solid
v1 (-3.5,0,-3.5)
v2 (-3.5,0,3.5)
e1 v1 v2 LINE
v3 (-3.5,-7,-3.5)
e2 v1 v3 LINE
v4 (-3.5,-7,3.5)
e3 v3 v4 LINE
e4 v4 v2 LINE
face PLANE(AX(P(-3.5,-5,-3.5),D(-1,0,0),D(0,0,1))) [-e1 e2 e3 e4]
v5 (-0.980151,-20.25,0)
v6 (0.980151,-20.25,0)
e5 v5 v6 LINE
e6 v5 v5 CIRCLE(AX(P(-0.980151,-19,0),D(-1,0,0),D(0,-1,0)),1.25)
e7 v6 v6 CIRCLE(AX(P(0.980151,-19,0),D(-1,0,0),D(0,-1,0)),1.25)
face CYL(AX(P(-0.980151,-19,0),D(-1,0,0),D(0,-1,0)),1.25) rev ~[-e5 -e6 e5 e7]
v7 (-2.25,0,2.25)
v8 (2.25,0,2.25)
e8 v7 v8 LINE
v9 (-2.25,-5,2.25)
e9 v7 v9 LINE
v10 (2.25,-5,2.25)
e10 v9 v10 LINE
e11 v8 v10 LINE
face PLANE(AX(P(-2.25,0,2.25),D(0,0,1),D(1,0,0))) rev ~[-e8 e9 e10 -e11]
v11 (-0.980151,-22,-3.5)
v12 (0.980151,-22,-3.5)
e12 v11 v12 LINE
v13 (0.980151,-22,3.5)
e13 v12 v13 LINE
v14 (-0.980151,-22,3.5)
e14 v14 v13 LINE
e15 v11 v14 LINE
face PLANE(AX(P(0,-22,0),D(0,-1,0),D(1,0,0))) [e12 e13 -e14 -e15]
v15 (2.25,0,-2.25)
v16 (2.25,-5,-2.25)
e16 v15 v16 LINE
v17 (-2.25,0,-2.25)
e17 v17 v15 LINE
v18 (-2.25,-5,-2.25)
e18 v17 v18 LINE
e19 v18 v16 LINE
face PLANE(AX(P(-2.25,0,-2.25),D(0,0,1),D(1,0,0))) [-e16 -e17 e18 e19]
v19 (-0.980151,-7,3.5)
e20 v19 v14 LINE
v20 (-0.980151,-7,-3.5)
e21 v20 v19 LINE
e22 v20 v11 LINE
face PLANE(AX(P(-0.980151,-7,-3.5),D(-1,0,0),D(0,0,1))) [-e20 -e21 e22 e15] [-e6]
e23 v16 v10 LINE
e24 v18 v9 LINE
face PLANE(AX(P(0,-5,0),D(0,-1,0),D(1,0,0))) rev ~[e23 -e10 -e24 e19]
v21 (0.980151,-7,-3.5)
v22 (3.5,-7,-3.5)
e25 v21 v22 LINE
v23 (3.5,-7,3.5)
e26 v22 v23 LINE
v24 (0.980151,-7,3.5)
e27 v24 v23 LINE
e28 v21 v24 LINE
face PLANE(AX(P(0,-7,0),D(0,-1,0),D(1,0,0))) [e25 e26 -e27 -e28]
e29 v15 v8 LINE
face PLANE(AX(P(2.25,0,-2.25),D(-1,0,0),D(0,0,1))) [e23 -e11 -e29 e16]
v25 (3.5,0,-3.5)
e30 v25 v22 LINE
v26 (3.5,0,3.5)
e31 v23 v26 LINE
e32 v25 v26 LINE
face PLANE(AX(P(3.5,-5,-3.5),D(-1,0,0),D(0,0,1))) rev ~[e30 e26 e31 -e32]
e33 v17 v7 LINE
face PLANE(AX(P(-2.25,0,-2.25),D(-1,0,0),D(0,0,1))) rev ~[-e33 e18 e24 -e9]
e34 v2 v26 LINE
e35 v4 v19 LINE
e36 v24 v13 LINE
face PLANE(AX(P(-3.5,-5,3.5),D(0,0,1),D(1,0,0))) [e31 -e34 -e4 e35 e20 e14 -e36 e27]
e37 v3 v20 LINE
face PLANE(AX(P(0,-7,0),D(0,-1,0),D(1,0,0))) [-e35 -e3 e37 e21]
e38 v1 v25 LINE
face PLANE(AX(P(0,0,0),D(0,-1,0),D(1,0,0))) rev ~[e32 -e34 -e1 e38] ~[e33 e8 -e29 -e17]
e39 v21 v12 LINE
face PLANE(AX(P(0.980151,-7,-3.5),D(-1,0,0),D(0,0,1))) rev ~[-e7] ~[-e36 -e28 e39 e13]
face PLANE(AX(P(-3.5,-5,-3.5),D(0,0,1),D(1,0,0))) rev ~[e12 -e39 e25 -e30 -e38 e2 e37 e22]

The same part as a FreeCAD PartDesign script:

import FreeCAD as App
import Part
import Sketcher
from FreeCAD import Vector
Q = App.Units.Quantity


def add_polygon(sketch, points):
    """Adds a closed chain of lines whose ends are joined by coincident constraints."""
    first, n = sketch.GeometryCount, len(points)
    for a, b in zip(points, points[1:] + points[:1]):
        sketch.addGeometry(Part.LineSegment(App.Vector(*a, 0), App.Vector(*b, 0)), False)
    for i in range(n):
        sketch.addConstraint(Sketcher.Constraint("Coincident", first + i, 2, first + (i + 1) % n, 1))

doc = App.newDocument("Part")
params = doc.addObject("Spreadsheet::Sheet", "Params")
for row, (alias, value) in enumerate([
    ("sketch1_width", "7 mm"),
    ("sketch1_width2", "4.5 mm"),
    ("pad1_length", "5 mm"),
    ("sketch2_width", "7 mm"),
    ("pad2_length", "2 mm"),
    ("sketch3_height", "7 mm"),
    ("pad3_length", "15 mm"),
    ("sketch4_diameter", "2.5 mm"),
    ("pocket1_length", "25 mm"),
], start=1):
    params.set(f"A{row}", alias)
    params.set(f"B{row}", "=" + value)
    params.setAlias(f"B{row}", alias)

body = doc.addObject("PartDesign::Body", "Body")

# Sketch on XZ plane
sketch1 = body.newObject("Sketcher::SketchObject", "Sketch")
sketch1.AttachmentSupport = (doc.getObject("XZ_Plane"), [""])
sketch1.MapMode = "FlatFace"
add_polygon(sketch1, [(-3.5, 3.5), (-3.5, -3.5), (3.5, -3.5), (3.5, 3.5)])  # lines 0-3
add_polygon(sketch1, [(2.2, -2.2), (-2.2, -2.2), (-2.2, 2.2), (2.2, 2.2)])  # lines 4-7
sketch1.addConstraint([
    Sketcher.Constraint("Vertical", 0),
    Sketcher.Constraint("Horizontal", 1),
    Sketcher.Constraint("Vertical", 2),
    Sketcher.Constraint("Horizontal", 3),
    Sketcher.Constraint("Horizontal", 4),
    Sketcher.Constraint("Vertical", 5),
    Sketcher.Constraint("Horizontal", 6),
    Sketcher.Constraint("Vertical", 7),
    Sketcher.Constraint("Symmetric", 0, 2, 2, 2, -1, 1),
    Sketcher.Constraint("Symmetric", 4, 2, 6, 2, -1, 1),
    Sketcher.Constraint("Equal", 3, 0),
    Sketcher.Constraint("Equal", 6, 5),
    Sketcher.Constraint("DistanceX", 1, 1, 1, 2, Q("7 mm")),
    Sketcher.Constraint("DistanceX", 4, 2, 4, 1, Q("4.5 mm")),
])
sketch1.setExpression("Constraints[20]", "Params.sketch1_width")
sketch1.setExpression("Constraints[21]", "Params.sketch1_width2")
pad1 = body.newObject("PartDesign::Pad", "Pad")
pad1.Profile = sketch1
pad1.setExpression("Length", "Params.pad1_length")

# Sketch on XZ plane
sketch2 = body.newObject("Sketcher::SketchObject", "Sketch001")
sketch2.AttachmentSupport = (doc.getObject("XZ_Plane"), [""])
sketch2.MapMode = "FlatFace"
sketch2.AttachmentOffset = App.Placement(Vector(0, 0, 5), App.Rotation())
add_polygon(sketch2, [(-4, 4), (-4, -4), (4, -4), (4, 4)])  # lines 0-3
sketch2.addConstraint([
    Sketcher.Constraint("Vertical", 0),
    Sketcher.Constraint("Horizontal", 1),
    Sketcher.Constraint("Vertical", 2),
    Sketcher.Constraint("Horizontal", 3),
    Sketcher.Constraint("Symmetric", 0, 2, 2, 2, -1, 1),
    Sketcher.Constraint("Equal", 3, 0),
    Sketcher.Constraint("DistanceX", 1, 1, 1, 2, Q("7 mm")),
])
sketch2.setExpression("Constraints[10]", "Params.sketch2_width")
pad2 = body.newObject("PartDesign::Pad", "Pad001")
pad2.Profile = sketch2
pad2.setExpression("Length", "Params.pad2_length")

# Sketch on XZ plane
sketch3 = body.newObject("Sketcher::SketchObject", "Sketch002")
sketch3.AttachmentSupport = (doc.getObject("XZ_Plane"), [""])
sketch3.MapMode = "FlatFace"
sketch3.AttachmentOffset = App.Placement(Vector(0, 0, 7), App.Rotation())
add_polygon(sketch3, [(-1, 3.5), (-1, -3.5), (1, -3.5), (1, 3.5)])  # lines 0-3
sketch3.addConstraint([
    Sketcher.Constraint("Vertical", 0),
    Sketcher.Constraint("Horizontal", 1),
    Sketcher.Constraint("Vertical", 2),
    Sketcher.Constraint("Horizontal", 3),
    Sketcher.Constraint("Symmetric", 0, 2, 2, 2, -1, 1),
    Sketcher.Constraint("DistanceY", 0, 2, 0, 1, Q("7 mm")),
    Sketcher.Constraint("DistanceX", 1, 1, 1, 2, Q("1.960302 mm")),
])
sketch3.setExpression("Constraints[9]", "Params.sketch3_height")
pad3 = body.newObject("PartDesign::Pad", "Pad002")
pad3.Profile = sketch3
pad3.setExpression("Length", "Params.pad3_length")

# Sketch on YZ plane
sketch4 = body.newObject("Sketcher::SketchObject", "Sketch003")
sketch4.AttachmentSupport = (doc.getObject("YZ_Plane"), [""])
sketch4.MapMode = "FlatFace"
sketch4.AttachmentOffset = App.Placement(Vector(0, 0, -0.980151), App.Rotation())
sketch4.addGeometry(Part.Circle(Vector(-19, 0, 0), Vector(0, 0, 1), 1.2), False)
sketch4.addConstraint([
    Sketcher.Constraint("PointOnObject", 0, 3, -1),
    Sketcher.Constraint("Diameter", 0, Q("2.5 mm")),
    Sketcher.Constraint("DistanceX", 0, 3, -1, 1, Q("19 mm")),
])
sketch4.setExpression("Constraints[1]", "Params.sketch4_diameter")
pocket1 = body.newObject("PartDesign::Pocket", "Pocket")
pocket1.Profile = sketch4
pocket1.setExpression("Length", "Params.pocket1_length")
pocket1.Reversed = True

doc.recompute()
